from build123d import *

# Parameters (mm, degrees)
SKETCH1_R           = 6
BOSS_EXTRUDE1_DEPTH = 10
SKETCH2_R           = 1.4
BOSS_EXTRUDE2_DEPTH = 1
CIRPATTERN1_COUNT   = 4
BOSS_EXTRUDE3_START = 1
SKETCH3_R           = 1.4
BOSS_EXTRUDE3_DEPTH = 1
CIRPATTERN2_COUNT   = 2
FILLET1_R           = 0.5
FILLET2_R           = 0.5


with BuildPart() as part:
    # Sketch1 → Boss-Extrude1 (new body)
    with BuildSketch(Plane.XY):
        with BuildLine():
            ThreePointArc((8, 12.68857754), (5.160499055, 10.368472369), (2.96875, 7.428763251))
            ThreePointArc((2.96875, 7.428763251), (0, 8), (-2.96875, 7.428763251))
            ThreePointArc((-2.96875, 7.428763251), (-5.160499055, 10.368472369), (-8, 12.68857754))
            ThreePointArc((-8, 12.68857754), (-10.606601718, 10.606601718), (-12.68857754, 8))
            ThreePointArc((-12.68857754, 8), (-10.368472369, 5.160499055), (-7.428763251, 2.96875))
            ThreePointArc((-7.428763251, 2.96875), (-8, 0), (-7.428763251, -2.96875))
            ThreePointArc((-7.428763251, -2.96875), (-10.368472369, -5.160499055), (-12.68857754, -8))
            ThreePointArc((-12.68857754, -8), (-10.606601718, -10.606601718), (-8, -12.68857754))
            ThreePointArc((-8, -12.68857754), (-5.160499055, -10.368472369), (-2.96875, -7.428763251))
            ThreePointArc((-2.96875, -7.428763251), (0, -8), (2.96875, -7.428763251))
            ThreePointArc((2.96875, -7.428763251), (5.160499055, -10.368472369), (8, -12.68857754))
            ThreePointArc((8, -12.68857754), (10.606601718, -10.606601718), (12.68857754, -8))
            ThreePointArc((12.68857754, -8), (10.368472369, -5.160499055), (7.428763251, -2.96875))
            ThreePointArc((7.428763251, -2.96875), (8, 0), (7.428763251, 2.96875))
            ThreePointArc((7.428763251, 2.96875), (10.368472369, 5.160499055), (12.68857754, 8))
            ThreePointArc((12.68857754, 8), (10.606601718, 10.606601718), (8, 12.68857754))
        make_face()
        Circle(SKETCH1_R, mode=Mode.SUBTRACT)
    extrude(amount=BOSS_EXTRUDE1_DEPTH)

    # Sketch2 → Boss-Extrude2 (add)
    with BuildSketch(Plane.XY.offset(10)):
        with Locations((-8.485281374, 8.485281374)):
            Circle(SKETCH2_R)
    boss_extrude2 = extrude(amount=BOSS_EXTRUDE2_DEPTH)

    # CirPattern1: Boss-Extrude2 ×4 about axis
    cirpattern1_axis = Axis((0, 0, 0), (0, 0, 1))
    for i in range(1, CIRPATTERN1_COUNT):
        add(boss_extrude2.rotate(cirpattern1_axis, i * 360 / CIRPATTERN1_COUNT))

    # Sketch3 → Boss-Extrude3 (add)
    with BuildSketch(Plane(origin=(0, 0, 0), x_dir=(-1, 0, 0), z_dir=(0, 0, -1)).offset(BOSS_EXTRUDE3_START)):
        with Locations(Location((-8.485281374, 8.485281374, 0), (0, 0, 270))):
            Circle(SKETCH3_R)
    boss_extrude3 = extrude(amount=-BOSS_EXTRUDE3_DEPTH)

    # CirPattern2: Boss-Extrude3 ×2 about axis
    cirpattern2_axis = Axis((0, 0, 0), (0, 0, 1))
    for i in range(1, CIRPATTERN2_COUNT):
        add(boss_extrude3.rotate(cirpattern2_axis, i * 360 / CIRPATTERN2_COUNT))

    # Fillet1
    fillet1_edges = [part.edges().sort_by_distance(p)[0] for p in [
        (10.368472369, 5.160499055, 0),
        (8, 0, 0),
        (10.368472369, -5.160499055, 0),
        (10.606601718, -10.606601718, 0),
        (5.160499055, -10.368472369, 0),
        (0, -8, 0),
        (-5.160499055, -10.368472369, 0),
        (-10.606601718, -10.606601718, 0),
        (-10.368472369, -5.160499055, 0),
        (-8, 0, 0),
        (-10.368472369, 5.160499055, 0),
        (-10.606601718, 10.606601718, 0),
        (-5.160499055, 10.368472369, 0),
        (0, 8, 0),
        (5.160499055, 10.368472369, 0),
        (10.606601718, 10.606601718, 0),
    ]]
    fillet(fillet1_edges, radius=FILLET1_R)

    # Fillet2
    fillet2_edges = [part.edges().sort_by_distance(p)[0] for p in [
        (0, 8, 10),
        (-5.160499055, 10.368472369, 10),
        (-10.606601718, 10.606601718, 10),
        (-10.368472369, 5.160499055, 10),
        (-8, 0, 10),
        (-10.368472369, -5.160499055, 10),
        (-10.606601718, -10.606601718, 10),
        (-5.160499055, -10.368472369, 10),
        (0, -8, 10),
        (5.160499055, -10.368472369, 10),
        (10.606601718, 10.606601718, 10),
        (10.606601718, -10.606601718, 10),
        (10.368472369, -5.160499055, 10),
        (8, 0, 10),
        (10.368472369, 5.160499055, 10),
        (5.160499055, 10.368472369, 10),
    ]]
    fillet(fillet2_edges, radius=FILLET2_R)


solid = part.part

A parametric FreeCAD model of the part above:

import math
import FreeCAD as App
import Part
import Sketcher
Q = App.Units.Quantity


def edges_at(feature, points):
    """Names of the edges that pass closest to the given points."""
    edges = feature.Shape.Edges
    near = lambda p: min(range(len(edges)), key=lambda i: edges[i].distToShape(Part.Vertex(*p))[0])
    return sorted({f"Edge{near(p) + 1}" for p in points})

doc = App.newDocument("Part")
body = doc.addObject("PartDesign::Body", "Body")

# Sketch on XY plane
sketch1 = body.newObject("Sketcher::SketchObject", "Sketch")
sketch1.AttachmentSupport = (doc.getObject("XY_Plane"), [""])
sketch1.MapMode = "FlatFace"
sketch1.addGeometry(Part.ArcOfCircle(Part.Circle(App.Vector(16, 0, 0), App.Vector(0, 0, 1), 15), math.radians(122.230953), math.radians(150.313705)), False)
sketch1.addGeometry(Part.ArcOfCircle(Part.Circle(App.Vector(0, 0, 0), App.Vector(0, 0, 1), 8), math.radians(68.216913), math.radians(111.783087)), False)
sketch1.addGeometry(Part.ArcOfCircle(Part.Circle(App.Vector(-16, 0, 0), App.Vector(0, 0, 1), 15), math.radians(29.686295), math.radians(57.769047)), False)
sketch1.addGeometry(Part.ArcOfCircle(Part.Circle(App.Vector(0, 0, 0), App.Vector(0, 0, 1), 15), math.radians(122.230953), math.radians(147.769047)), False)
sketch1.addGeometry(Part.ArcOfCircle(Part.Circle(App.Vector(0, 16, 0), App.Vector(0, 0, 1), 15), math.radians(-147.769047), math.radians(-119.686295)), False)
sketch1.addGeometry(Part.ArcOfCircle(Part.Circle(App.Vector(0, 0, 0), App.Vector(0, 0, 1), 8), math.radians(158.216913), math.radians(201.783087)), False)
sketch1.addGeometry(Part.ArcOfCircle(Part.Circle(App.Vector(0, -16, 0), App.Vector(0, 0, 1), 15), math.radians(119.686295), math.radians(147.769047)), False)
sketch1.addGeometry(Part.ArcOfCircle(Part.Circle(App.Vector(0, 0, 0), App.Vector(0, 0, 1), 15), math.radians(-147.769047), math.radians(-122.230953)), False)
sketch1.addGeometry(Part.ArcOfCircle(Part.Circle(App.Vector(-16, 0, 0), App.Vector(0, 0, 1), 15), math.radians(-57.769047), math.radians(-29.686295)), False)
sketch1.addGeometry(Part.ArcOfCircle(Part.Circle(App.Vector(0, 0, 0), App.Vector(0, 0, 1), 8), math.radians(-111.783087), math.radians(-68.216913)), False)
sketch1.addGeometry(Part.ArcOfCircle(Part.Circle(App.Vector(16, 0, 0), App.Vector(0, 0, 1), 15), math.radians(-150.313705), math.radians(-122.230953)), False)
sketch1.addGeometry(Part.ArcOfCircle(Part.Circle(App.Vector(0, 0, 0), App.Vector(0, 0, 1), 15), math.radians(-57.769047), math.radians(-32.230953)), False)
sketch1.addGeometry(Part.ArcOfCircle(Part.Circle(App.Vector(0, -16, 0), App.Vector(0, 0, 1), 15), math.radians(32.230953), math.radians(60.313705)), False)
sketch1.addGeometry(Part.ArcOfCircle(Part.Circle(App.Vector(0, 0, 0), App.Vector(0, 0, 1), 8), math.radians(-21.783087), math.radians(21.783087)), False)
sketch1.addGeometry(Part.ArcOfCircle(Part.Circle(App.Vector(0, 16, 0), App.Vector(0, 0, 1), 15), math.radians(-60.313705), math.radians(-32.230953)), False)
sketch1.addGeometry(Part.ArcOfCircle(Part.Circle(App.Vector(0, 0, 0), App.Vector(0, 0, 1), 15), math.radians(32.230953), math.radians(57.769047)), False)
sketch1.addGeometry(Part.Circle(App.Vector(0, 0, 0), App.Vector(0, 0, 1), 6), False)
sketch1.addConstraint(Sketcher.Constraint("Coincident", 0, 2, 1, 1))
sketch1.addConstraint(Sketcher.Constraint("Coincident", 1, 2, 2, 1))
sketch1.addConstraint(Sketcher.Constraint("Coincident", 2, 2, 3, 1))
sketch1.addConstraint(Sketcher.Constraint("Coincident", 3, 2, 4, 1))
sketch1.addConstraint(Sketcher.Constraint("Coincident", 4, 2, 5, 1))
sketch1.addConstraint(Sketcher.Constraint("Coincident", 5, 2, 6, 1))
sketch1.addConstraint(Sketcher.Constraint("Coincident", 6, 2, 7, 1))
sketch1.addConstraint(Sketcher.Constraint("Coincident", 7, 2, 8, 1))
sketch1.addConstraint(Sketcher.Constraint("Coincident", 8, 2, 9, 1))
sketch1.addConstraint(Sketcher.Constraint("Coincident", 9, 2, 10, 1))
sketch1.addConstraint(Sketcher.Constraint("Coincident", 10, 2, 11, 1))
sketch1.addConstraint(Sketcher.Constraint("Coincident", 11, 2, 12, 1))
sketch1.addConstraint(Sketcher.Constraint("Coincident", 12, 2, 13, 1))
sketch1.addConstraint(Sketcher.Constraint("Coincident", 13, 2, 14, 1))
sketch1.addConstraint(Sketcher.Constraint("Coincident", 14, 2, 15, 1))
sketch1.addConstraint(Sketcher.Constraint("Coincident", 15, 2, 0, 1))
sketch1.addConstraint(Sketcher.Constraint("Coincident", 1, 3, -1, 1))
sketch1.addConstraint(Sketcher.Constraint("Coincident", 3, 3, -1, 1))
sketch1.addConstraint(Sketcher.Constraint("Coincident", 5, 3, -1, 1))
sketch1.addConstraint(Sketcher.Constraint("Coincident", 7, 3, -1, 1))
sketch1.addConstraint(Sketcher.Constraint("Coincident", 9, 3, -1, 1))
sketch1.addConstraint(Sketcher.Constraint("Coincident", 11, 3, -1, 1))
sketch1.addConstraint(Sketcher.Constraint("Coincident", 13, 3, -1, 1))
sketch1.addConstraint(Sketcher.Constraint("Coincident", 15, 3, -1, 1))
sketch1.addConstraint(Sketcher.Constraint("Coincident", 16, 3, -1, 1))
sketch1.addConstraint(Sketcher.Constraint("Coincident", 8, 3, 2, 3))
sketch1.addConstraint(Sketcher.Constraint("Coincident", 10, 3, 0, 3))
sketch1.addConstraint(Sketcher.Constraint("Coincident", 12, 3, 6, 3))
sketch1.addConstraint(Sketcher.Constraint("Coincident", 14, 3, 4, 3))
sketch1.addConstraint(Sketcher.Constraint("Equal", 0, 2))
sketch1.addConstraint(Sketcher.Constraint("Equal", 2, 3))
sketch1.addConstraint(Sketcher.Constraint("Equal", 3, 4))
sketch1.addConstraint(Sketcher.Constraint("Equal", 1, 5))
sketch1.addConstraint(Sketcher.Constraint("Equal", 4, 6))
sketch1.addConstraint(Sketcher.Constraint("Equal", 6, 7))
sketch1.addConstraint(Sketcher.Constraint("Equal", 7, 8))
sketch1.addConstraint(Sketcher.Constraint("Equal", 5, 9))
sketch1.addConstraint(Sketcher.Constraint("Equal", 8, 10))
sketch1.addConstraint(Sketcher.Constraint("Equal", 10, 11))
sketch1.addConstraint(Sketcher.Constraint("Equal", 11, 12))
sketch1.addConstraint(Sketcher.Constraint("Equal", 9, 13))
sketch1.addConstraint(Sketcher.Constraint("Equal", 12, 14))
sketch1.addConstraint(Sketcher.Constraint("Equal", 14, 15))
sketch1.addConstraint(Sketcher.Constraint("Symmetric", 0, 3, 2, 3, -1, 1))
sketch1.addConstraint(Sketcher.Constraint("Symmetric", 4, 3, 6, 3, -1, 1))
sketch1.addConstraint(Sketcher.Constraint("PointOnObject", 0, 3, -1))
sketch1.addConstraint(Sketcher.Constraint("PointOnObject", 4, 3, -2))
sketch1.addConstraint(Sketcher.Constraint("Diameter", 16, Q("12 mm")))
sketch1.addConstraint(Sketcher.Constraint("Radius", 0, Q("15 mm")))
sketch1.addConstraint(Sketcher.Constraint("Radius", 1, Q("8 mm")))
sketch1.addConstraint(Sketcher.Constraint("DistanceX", -1, 1, 0, 3, Q("16 mm")))
sketch1.addConstraint(Sketcher.Constraint("DistanceY", -1, 1, 4, 3, Q("16 mm")))
pad1 = body.newObject("PartDesign::Pad", "Pad")
pad1.Profile = sketch1
pad1.Length = 10

# Sketch on XY plane
sketch2 = body.newObject("Sketcher::SketchObject", "Sketch001")
sketch2.AttachmentSupport = (doc.getObject("XY_Plane"), [""])
sketch2.MapMode = "FlatFace"
sketch2.AttachmentOffset = App.Placement(App.Vector(0, 0, 10), App.Rotation())
sketch2.addGeometry(Part.Circle(App.Vector(-8.485281, 8.485281, 0), App.Vector(0, 0, 1), 1.4), False)
sketch2.addConstraint(Sketcher.Constraint("Diameter", 0, Q("2.8 mm")))
sketch2.addConstraint(Sketcher.Constraint("DistanceX", 0, 3, -1, 1, Q("8.485281 mm")))
sketch2.addConstraint(Sketcher.Constraint("DistanceY", -1, 1, 0, 3, Q("8.485281 mm")))
pad2 = body.newObject("PartDesign::Pad", "Pad001")
pad2.Profile = sketch2
pad2.Length = 1
doc.recompute()

polarpattern = body.newObject("PartDesign::PolarPattern", "PolarPattern")
polarpattern.Originals = [pad2]
polarpattern.Axis = (doc.getObject("Z_Axis"), [""])
polarpattern.Angle = 360
polarpattern.Occurrences = 4
body.Tip = polarpattern

# Sketch on XY plane
sketch3 = body.newObject("Sketcher::SketchObject", "Sketch002")
sketch3.AttachmentSupport = (doc.getObject("XY_Plane"), [""])
sketch3.MapMode = "FlatFace"
sketch3.AttachmentOffset = App.Placement(App.Vector(0, 0, -1), App.Rotation())
sketch3.addGeometry(Part.Circle(App.Vector(8.485281, 8.485281, 0), App.Vector(0, 0, 1), 1.4), False)
sketch3.addConstraint(Sketcher.Constraint("Diameter", 0, Q("2.8 mm")))
sketch3.addConstraint(Sketcher.Constraint("DistanceX", -1, 1, 0, 3, Q("8.485281 mm")))
sketch3.addConstraint(Sketcher.Constraint("DistanceY", -1, 1, 0, 3, Q("8.485281 mm")))
pad3 = body.newObject("PartDesign::Pad", "Pad002")
pad3.Profile = sketch3
pad3.Length = 1
doc.recompute()

polarpattern2 = body.newObject("PartDesign::PolarPattern", "PolarPattern001")
polarpattern2.Originals = [pad3]
polarpattern2.Axis = (doc.getObject("Z_Axis"), [""])
polarpattern2.Angle = 360
polarpattern2.Occurrences = 2
body.Tip = polarpattern2
doc.recompute()

fillet = body.newObject("PartDesign::Fillet", "Fillet")
fillet.Base = (polarpattern2, edges_at(polarpattern2, [
    (10.368, 5.16, 0),
    (8, 0, 0),
    (10.368, -5.16, 0),
    (10.607, -10.607, 0),
    (5.16, -10.368, 0),
    (0, -8, 0),
    (-5.16, -10.368, 0),
    (-10.607, -10.607, 0),
    (-10.368, -5.16, 0),
    (-8, 0, 0),
    (-10.368, 5.16, 0),
    (-10.607, 10.607, 0),
    (-5.16, 10.368, 0),
    (0, 8, 0),
    (5.16, 10.368, 0),
    (10.607, 10.607, 0),
]))
fillet.Radius = 0.5
doc.recompute()

fillet2 = body.newObject("PartDesign::Fillet", "Fillet001")
fillet2.Base = (fillet, edges_at(fillet, [
    (0, 8, 10),
    (-5.16, 10.368, 10),
    (-10.607, 10.607, 10),
    (-10.368, 5.16, 10),
    (-8, 0, 10),
    (-10.368, -5.16, 10),
    (-10.607, -10.607, 10),
    (-5.16, -10.368, 10),
    (0, -8, 10),
    (5.16, -10.368, 10),
    (10.607, 10.607, 10),
    (10.607, -10.607, 10),
    (10.368, -5.16, 10),
    (8, 0, 10),
    (10.368, 5.16, 10),
    (5.16, 10.368, 10),
]))
fillet2.Radius = 0.5

doc.recompute()
